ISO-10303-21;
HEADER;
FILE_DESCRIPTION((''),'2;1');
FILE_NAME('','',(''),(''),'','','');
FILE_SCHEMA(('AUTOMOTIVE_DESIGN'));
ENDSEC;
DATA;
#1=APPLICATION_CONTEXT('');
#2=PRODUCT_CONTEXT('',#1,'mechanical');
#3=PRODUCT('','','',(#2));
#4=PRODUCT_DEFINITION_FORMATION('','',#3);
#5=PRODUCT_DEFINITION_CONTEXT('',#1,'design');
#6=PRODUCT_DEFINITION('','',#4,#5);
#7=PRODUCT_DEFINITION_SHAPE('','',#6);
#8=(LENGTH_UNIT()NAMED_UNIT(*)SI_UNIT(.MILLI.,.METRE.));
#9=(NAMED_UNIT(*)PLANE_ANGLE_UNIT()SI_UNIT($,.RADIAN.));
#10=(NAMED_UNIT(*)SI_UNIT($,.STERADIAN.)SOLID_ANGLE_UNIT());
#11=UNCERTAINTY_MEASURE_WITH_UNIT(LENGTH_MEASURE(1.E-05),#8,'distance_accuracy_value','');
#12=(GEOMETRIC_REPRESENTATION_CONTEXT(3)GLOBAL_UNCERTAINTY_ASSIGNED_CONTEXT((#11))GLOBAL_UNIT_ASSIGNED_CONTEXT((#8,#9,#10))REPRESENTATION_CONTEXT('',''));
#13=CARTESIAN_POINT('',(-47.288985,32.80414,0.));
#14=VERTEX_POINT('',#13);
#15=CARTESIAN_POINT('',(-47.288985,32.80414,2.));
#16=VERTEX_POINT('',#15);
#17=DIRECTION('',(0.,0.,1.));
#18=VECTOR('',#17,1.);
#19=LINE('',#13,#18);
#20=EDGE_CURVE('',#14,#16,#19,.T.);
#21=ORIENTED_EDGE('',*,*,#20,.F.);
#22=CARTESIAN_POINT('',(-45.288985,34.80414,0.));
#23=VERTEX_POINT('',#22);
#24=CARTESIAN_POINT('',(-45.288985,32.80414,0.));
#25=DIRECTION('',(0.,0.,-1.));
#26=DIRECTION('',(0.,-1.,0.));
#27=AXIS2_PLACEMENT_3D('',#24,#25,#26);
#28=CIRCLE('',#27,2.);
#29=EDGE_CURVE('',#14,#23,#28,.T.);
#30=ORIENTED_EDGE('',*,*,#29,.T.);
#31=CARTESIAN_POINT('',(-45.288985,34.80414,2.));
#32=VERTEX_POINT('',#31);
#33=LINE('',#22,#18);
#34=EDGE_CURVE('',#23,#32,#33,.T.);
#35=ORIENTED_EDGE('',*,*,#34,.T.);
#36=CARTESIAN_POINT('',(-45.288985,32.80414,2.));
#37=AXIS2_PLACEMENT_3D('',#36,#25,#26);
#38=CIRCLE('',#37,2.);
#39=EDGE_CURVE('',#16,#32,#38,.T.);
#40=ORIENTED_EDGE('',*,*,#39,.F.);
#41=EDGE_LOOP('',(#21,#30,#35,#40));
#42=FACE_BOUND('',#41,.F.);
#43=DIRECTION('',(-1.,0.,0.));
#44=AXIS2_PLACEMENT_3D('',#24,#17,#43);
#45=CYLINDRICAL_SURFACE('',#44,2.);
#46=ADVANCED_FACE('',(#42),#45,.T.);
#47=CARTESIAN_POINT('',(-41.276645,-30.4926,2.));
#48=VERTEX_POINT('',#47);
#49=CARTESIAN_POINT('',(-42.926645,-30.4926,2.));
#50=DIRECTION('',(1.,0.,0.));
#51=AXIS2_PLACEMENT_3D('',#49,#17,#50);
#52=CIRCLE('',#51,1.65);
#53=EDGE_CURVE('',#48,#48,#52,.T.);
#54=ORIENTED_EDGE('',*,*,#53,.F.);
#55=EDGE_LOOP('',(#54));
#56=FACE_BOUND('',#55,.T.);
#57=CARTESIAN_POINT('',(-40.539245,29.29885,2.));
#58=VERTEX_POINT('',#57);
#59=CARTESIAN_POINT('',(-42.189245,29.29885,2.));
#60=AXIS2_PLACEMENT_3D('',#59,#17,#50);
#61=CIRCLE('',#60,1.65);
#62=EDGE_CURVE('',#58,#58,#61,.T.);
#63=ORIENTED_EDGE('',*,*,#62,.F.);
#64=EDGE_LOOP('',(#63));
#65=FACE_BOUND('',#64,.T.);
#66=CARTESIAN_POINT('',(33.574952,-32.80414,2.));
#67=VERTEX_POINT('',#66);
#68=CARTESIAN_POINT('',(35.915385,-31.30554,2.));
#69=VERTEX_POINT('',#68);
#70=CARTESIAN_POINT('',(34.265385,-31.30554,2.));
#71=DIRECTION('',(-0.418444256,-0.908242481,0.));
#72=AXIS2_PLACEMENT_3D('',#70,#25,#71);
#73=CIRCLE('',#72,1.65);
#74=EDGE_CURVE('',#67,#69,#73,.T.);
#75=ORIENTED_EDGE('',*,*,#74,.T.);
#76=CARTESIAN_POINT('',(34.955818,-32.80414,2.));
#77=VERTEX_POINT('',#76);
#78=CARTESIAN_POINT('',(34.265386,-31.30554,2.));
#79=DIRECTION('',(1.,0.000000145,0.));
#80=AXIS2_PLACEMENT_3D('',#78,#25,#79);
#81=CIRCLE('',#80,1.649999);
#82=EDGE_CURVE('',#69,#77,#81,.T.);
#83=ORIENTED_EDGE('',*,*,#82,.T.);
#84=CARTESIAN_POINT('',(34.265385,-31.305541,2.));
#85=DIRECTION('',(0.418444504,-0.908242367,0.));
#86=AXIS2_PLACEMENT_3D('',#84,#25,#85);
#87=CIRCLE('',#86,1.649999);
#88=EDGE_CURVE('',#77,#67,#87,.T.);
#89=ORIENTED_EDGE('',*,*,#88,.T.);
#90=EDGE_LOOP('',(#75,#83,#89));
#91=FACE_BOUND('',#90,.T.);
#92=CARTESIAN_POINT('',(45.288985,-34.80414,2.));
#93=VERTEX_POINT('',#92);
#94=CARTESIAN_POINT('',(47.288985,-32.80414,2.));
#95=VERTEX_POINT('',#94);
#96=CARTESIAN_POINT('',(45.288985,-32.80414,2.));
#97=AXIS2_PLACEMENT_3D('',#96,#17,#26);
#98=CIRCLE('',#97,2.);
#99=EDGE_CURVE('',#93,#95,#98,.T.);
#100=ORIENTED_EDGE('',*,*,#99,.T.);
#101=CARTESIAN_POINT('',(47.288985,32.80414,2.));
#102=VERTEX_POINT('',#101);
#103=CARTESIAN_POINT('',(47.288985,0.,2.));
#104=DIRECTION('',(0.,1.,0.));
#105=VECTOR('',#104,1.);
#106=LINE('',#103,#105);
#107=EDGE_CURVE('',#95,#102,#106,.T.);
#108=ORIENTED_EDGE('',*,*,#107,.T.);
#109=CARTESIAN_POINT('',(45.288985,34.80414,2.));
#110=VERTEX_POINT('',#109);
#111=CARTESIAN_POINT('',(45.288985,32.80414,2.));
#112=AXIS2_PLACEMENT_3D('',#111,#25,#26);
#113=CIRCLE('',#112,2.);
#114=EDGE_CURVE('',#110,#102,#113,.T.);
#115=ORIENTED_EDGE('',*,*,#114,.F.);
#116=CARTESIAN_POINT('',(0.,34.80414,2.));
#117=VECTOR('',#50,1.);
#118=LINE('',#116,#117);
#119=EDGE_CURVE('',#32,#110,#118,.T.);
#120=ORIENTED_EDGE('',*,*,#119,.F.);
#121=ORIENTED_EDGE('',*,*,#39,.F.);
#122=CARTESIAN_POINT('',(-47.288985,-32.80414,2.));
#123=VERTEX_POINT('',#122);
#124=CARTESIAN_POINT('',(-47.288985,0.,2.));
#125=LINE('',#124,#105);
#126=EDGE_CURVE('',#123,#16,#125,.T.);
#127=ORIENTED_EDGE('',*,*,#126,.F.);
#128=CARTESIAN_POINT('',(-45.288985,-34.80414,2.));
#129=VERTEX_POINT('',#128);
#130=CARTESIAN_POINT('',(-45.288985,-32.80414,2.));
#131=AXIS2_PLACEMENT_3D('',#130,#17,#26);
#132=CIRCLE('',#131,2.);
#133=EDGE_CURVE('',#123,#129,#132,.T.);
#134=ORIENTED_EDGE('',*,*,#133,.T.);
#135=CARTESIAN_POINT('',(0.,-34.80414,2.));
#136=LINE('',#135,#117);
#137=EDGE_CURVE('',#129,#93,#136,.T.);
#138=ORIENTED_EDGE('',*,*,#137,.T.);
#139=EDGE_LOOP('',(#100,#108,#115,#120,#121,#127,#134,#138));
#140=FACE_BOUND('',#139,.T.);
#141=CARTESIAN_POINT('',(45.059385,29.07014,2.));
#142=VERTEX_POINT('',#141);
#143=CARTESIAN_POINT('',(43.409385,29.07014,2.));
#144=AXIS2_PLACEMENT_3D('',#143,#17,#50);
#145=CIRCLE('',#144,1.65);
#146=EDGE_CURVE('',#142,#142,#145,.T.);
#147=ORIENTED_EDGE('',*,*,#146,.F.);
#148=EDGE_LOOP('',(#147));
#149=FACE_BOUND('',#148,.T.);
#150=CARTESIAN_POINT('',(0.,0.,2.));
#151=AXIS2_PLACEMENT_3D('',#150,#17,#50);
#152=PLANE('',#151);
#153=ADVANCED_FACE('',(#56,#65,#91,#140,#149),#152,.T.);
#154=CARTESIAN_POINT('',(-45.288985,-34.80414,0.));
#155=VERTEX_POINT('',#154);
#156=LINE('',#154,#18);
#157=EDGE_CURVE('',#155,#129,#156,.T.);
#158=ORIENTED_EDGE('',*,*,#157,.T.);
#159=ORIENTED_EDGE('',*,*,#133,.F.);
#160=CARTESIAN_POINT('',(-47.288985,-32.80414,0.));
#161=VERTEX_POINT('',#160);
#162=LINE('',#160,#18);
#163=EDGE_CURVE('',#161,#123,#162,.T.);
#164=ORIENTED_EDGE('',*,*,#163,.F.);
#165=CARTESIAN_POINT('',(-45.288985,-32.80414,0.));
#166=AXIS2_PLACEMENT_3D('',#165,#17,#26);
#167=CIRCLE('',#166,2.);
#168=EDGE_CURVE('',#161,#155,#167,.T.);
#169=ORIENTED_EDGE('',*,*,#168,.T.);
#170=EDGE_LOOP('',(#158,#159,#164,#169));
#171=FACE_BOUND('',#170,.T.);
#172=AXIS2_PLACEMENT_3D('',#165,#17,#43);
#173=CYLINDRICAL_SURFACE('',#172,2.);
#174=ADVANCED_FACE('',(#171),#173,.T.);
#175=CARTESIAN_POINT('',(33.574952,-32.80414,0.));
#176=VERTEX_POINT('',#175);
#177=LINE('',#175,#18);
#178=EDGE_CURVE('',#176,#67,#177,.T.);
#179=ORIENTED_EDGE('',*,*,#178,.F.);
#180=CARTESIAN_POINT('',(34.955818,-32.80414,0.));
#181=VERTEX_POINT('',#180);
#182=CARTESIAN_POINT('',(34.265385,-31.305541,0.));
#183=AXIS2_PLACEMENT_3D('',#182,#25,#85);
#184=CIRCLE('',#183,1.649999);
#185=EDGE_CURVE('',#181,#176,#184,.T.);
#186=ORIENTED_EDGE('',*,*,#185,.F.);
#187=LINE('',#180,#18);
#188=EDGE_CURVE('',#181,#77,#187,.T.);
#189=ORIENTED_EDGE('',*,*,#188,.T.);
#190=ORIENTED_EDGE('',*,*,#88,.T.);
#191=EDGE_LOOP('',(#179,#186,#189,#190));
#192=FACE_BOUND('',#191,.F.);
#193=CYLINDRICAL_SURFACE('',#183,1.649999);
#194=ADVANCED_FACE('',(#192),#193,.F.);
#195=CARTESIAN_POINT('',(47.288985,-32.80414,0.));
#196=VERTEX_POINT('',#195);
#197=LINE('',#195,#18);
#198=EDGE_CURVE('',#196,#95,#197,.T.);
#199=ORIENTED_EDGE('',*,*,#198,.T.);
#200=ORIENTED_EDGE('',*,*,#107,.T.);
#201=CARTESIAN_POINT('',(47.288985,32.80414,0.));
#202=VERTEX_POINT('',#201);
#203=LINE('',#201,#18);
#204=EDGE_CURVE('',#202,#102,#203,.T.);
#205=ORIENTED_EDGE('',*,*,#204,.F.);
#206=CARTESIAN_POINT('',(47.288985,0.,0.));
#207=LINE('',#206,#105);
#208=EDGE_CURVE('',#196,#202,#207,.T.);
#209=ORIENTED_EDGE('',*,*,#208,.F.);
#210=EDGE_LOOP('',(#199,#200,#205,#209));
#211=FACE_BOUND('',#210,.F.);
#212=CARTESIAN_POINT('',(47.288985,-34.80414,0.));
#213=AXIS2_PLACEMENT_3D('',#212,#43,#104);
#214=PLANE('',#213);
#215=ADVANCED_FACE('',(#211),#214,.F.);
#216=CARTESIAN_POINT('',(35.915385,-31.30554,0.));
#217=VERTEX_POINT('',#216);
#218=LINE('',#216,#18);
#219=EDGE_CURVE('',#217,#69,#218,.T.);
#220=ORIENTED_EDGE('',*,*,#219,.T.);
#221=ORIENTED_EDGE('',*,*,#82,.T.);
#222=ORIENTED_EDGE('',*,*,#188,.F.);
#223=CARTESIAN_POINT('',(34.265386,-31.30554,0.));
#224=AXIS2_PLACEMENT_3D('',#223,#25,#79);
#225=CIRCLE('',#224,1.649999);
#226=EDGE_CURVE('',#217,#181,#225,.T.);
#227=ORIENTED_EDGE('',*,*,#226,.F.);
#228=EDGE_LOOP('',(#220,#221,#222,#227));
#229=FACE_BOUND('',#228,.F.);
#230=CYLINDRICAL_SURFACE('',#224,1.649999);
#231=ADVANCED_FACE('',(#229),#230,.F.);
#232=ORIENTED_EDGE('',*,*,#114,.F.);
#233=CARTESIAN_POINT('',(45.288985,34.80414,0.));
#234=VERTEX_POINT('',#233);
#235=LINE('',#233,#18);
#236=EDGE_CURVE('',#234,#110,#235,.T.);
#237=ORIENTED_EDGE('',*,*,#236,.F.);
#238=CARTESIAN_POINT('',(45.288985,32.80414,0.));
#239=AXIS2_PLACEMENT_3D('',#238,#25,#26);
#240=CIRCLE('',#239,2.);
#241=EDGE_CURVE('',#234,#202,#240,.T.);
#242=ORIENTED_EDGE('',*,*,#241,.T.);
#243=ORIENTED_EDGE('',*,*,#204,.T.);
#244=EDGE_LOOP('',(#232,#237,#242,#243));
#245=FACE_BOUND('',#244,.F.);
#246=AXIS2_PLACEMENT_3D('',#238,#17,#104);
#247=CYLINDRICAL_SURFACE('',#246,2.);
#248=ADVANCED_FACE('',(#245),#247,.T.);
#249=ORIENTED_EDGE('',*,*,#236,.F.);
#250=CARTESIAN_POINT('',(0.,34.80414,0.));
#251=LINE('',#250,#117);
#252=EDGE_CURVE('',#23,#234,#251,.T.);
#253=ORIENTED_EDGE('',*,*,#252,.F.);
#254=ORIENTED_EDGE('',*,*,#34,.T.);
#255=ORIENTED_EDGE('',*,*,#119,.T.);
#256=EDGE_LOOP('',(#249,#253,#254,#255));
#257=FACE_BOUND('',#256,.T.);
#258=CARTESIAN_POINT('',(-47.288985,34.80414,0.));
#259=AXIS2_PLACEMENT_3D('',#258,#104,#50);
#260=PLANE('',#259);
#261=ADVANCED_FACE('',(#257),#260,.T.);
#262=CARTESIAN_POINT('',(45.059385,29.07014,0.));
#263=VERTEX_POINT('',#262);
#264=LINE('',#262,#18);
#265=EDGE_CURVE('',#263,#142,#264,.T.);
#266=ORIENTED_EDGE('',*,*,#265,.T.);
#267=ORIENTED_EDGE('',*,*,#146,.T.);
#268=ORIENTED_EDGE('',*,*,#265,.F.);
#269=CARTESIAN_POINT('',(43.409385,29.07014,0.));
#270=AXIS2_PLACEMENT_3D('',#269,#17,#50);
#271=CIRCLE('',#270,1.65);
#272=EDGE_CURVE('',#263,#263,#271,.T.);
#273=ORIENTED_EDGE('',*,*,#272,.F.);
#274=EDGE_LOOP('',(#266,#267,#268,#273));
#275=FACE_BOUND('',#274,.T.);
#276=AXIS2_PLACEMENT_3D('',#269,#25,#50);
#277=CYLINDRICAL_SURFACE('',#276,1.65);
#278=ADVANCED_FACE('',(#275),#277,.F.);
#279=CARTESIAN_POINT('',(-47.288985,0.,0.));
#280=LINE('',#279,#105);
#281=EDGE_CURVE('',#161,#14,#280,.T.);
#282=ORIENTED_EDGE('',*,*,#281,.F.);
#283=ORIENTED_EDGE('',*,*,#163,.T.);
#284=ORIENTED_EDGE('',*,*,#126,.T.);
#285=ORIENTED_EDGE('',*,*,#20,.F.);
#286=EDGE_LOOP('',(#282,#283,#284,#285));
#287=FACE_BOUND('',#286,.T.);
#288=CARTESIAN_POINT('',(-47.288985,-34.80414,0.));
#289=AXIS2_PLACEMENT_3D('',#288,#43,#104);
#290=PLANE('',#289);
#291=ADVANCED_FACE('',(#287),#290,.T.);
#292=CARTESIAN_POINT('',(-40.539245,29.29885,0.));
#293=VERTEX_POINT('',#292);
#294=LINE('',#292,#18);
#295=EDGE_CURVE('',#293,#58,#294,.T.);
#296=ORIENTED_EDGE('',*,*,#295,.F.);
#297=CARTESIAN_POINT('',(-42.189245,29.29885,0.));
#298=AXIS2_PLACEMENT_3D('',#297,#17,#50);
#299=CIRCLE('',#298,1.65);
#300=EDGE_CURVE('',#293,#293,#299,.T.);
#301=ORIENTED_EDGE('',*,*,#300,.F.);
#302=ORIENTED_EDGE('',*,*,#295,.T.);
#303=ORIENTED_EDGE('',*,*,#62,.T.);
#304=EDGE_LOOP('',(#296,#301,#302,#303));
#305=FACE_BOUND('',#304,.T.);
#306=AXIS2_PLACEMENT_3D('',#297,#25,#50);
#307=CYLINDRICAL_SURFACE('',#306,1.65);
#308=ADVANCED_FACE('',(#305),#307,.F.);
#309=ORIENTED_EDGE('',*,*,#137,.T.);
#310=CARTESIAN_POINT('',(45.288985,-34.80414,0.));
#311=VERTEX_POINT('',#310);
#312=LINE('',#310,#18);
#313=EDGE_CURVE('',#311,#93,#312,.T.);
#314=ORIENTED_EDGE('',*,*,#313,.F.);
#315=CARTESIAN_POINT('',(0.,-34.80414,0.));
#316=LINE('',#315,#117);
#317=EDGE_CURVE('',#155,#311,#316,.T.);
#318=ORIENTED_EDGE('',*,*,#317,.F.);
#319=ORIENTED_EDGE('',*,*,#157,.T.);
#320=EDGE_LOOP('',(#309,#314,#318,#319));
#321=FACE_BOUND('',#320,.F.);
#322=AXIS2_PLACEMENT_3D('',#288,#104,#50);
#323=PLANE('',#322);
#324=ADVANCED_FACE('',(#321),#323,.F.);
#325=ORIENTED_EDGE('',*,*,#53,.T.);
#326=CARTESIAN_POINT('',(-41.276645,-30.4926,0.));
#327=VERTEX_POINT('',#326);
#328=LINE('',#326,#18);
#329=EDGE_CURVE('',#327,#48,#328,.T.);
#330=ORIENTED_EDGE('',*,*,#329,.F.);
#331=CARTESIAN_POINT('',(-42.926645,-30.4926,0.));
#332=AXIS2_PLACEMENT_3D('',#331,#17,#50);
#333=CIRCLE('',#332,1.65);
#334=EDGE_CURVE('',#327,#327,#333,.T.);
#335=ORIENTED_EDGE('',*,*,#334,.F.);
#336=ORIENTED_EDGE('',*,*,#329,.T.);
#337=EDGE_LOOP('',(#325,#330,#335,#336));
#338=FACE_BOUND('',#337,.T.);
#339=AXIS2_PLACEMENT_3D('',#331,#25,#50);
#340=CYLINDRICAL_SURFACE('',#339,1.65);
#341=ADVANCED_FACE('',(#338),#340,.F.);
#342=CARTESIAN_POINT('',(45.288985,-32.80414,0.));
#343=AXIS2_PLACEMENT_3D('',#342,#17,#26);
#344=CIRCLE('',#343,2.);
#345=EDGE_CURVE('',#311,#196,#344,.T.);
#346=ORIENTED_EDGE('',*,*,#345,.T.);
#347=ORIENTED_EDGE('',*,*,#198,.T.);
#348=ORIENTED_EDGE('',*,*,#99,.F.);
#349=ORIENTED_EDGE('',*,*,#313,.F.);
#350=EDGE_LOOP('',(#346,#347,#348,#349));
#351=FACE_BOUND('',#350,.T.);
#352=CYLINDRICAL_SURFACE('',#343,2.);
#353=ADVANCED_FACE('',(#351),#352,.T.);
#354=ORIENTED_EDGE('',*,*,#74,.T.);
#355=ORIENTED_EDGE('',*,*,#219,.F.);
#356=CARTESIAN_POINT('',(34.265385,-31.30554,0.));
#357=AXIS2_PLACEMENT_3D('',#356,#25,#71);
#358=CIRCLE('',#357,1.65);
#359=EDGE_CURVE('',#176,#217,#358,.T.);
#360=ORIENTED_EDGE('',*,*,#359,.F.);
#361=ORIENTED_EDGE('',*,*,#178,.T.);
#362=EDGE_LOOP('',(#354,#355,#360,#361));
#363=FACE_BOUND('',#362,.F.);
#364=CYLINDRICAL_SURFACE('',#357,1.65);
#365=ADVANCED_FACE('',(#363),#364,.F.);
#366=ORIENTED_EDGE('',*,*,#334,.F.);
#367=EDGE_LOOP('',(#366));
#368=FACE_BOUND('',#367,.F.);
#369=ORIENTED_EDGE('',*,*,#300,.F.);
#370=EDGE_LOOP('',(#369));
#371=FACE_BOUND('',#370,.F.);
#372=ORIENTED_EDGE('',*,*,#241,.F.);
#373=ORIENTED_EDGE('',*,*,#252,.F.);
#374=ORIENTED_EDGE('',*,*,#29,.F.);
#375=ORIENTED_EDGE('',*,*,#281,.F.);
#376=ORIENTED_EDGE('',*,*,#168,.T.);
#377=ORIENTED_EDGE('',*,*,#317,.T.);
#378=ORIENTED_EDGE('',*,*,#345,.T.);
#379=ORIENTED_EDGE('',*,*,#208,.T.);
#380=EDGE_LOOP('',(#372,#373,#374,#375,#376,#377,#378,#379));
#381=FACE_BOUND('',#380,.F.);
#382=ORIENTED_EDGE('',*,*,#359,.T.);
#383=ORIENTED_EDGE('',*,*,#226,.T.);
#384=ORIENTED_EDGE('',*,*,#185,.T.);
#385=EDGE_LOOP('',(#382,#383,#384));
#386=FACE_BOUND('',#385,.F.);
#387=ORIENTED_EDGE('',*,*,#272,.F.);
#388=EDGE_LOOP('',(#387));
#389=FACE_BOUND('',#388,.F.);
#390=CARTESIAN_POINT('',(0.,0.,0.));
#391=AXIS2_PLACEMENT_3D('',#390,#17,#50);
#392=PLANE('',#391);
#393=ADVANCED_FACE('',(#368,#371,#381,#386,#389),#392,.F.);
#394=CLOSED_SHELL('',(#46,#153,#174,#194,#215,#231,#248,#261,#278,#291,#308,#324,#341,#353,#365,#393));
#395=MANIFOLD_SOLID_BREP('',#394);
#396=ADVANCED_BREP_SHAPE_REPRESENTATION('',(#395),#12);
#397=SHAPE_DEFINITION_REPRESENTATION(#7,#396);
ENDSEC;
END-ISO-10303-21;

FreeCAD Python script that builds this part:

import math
import FreeCAD as App
import Part
import Sketcher
Q = App.Units.Quantity


def edges_at(feature, points):
    """Names of the edges that pass closest to the given points."""
    edges = feature.Shape.Edges
    near = lambda p: min(range(len(edges)), key=lambda i: edges[i].distToShape(Part.Vertex(*p))[0])
    return sorted({f"Edge{near(p) + 1}" for p in points})


def add_polygon(sketch, points):
    """Adds a closed chain of lines whose ends are joined by coincident constraints."""
    first, n = sketch.GeometryCount, len(points)
    for a, b in zip(points, points[1:] + points[:1]):
        sketch.addGeometry(Part.LineSegment(App.Vector(*a, 0), App.Vector(*b, 0)), False)
    for i in range(n):
        sketch.addConstraint(Sketcher.Constraint("Coincident", first + i, 2, first + (i + 1) % n, 1))

doc = App.newDocument("Part")
params = doc.addObject("Spreadsheet::Sheet", "Params")
for row, (alias, value) in enumerate([
    ("sketch1_diameter", "3.3 mm"),
    ("pad1_length", "2 mm"),
    ("fillet_radius", "2 mm"),
], start=1):
    params.set(f"A{row}", alias)
    params.set(f"B{row}", "=" + value)
    params.setAlias(f"B{row}", alias)

body = doc.addObject("PartDesign::Body", "Body")

# Sketch on XY plane
sketch1 = body.newObject("Sketcher::SketchObject", "Sketch")
sketch1.AttachmentSupport = (doc.getObject("XY_Plane"), [""])
sketch1.MapMode = "FlatFace"
add_polygon(sketch1, [(-47.3, 34.8), (-47.3, -34.8), (47.3, -34.8), (47.3, 34.8)])  # lines 0-3
sketch1.addGeometry(Part.Circle(App.Vector(-42.9, -30.5, 0), App.Vector(0, 0, 1), 1.6), False)  # 4
sketch1.addGeometry(Part.ArcOfCircle(Part.Circle(App.Vector(34.3, -31.3, 0), App.Vector(0, 0, 1), 1.6), math.radians(-115), math.radians(-65)), False)  # 5
sketch1.addGeometry(Part.ArcOfCircle(Part.Circle(App.Vector(34.3, -31.3, 0), App.Vector(0, 0, 1), 1.6), math.radians(0), math.radians(245)), False)  # 6
sketch1.addGeometry(Part.ArcOfCircle(Part.Circle(App.Vector(34.3, -31.3, 0), App.Vector(0, 0, 1), 1.6), math.radians(-65), math.radians(0)), False)  # 7
sketch1.addGeometry(Part.Circle(App.Vector(-42.2, 29.3, 0), App.Vector(0, 0, 1), 1.6), False)  # 8
sketch1.addGeometry(Part.Circle(App.Vector(43.4, 29.1, 0), App.Vector(0, 0, 1), 1.6), False)  # 9
sketch1.addConstraint([
    Sketcher.Constraint("Tangent", 5, 1, 6, 2),
    Sketcher.Constraint("Tangent", 6, 1, 7, 2),
    Sketcher.Constraint("Tangent", 7, 1, 5, 2),
    Sketcher.Constraint("Vertical", 0),
    Sketcher.Constraint("Horizontal", 1),
    Sketcher.Constraint("Vertical", 2),
    Sketcher.Constraint("Horizontal", 3),
    Sketcher.Constraint("Equal", 4, 5),
    Sketcher.Constraint("Equal", 7, 8),
    Sketcher.Constraint("Equal", 8, 9),
    Sketcher.Constraint("Symmetric", 0, 2, 2, 2, -1, 1),
    Sketcher.Constraint("Horizontal", 7, 3, 6, 1),
    Sketcher.Constraint("Horizontal", 5, 1, 7, 1),
    Sketcher.Constraint("Diameter", 4, Q("3.3 mm")),
    Sketcher.Constraint("DistanceY", 1, 2, 5, 1, Q("2 mm")),
    Sketcher.Constraint("DistanceX", 6, 3, 9, 3, Q("9.144 mm")),
    Sketcher.Constraint("DistanceY", 9, 3, 2, 2, Q("5.734 mm")),
    Sketcher.Constraint("DistanceX", 1, 1, 1, 2, Q("94.57797 mm")),
    Sketcher.Constraint("DistanceY", 0, 2, 0, 1, Q("69.60828 mm")),
    Sketcher.Constraint("DistanceY", 4, 3, -1, 1, Q("30.4926 mm")),
    Sketcher.Constraint("DistanceX", 4, 3, 8, 3, Q("0.7374 mm")),
    Sketcher.Constraint("DistanceY", 0, 2, 5, 3, Q("3.498599 mm")),
    Sketcher.Constraint("DistanceX", 7, 3, 1, 2, Q("13.023599 mm")),
    Sketcher.Constraint("DistanceY", -1, 1, 8, 3, Q("29.29885 mm")),
    Sketcher.Constraint("DistanceX", 4, 3, 5, 3, Q("77.19203 mm")),
])
sketch1.setExpression("Constraints[17]", "Params.sketch1_diameter")
pad1 = body.newObject("PartDesign::Pad", "Pad")
pad1.Profile = sketch1
pad1.setExpression("Length", "Params.pad1_length")
doc.recompute()

fillet = body.newObject("PartDesign::Fillet", "Fillet")
fillet.Base = (pad1, edges_at(pad1, [
    (-47.289, -34.804, 1),
    (-47.289, 34.804, 1),
    (47.289, -34.804, 1),
    (47.289, 34.804, 1),
]))
fillet.setExpression("Radius", "Params.fillet_radius")

doc.recompute()
